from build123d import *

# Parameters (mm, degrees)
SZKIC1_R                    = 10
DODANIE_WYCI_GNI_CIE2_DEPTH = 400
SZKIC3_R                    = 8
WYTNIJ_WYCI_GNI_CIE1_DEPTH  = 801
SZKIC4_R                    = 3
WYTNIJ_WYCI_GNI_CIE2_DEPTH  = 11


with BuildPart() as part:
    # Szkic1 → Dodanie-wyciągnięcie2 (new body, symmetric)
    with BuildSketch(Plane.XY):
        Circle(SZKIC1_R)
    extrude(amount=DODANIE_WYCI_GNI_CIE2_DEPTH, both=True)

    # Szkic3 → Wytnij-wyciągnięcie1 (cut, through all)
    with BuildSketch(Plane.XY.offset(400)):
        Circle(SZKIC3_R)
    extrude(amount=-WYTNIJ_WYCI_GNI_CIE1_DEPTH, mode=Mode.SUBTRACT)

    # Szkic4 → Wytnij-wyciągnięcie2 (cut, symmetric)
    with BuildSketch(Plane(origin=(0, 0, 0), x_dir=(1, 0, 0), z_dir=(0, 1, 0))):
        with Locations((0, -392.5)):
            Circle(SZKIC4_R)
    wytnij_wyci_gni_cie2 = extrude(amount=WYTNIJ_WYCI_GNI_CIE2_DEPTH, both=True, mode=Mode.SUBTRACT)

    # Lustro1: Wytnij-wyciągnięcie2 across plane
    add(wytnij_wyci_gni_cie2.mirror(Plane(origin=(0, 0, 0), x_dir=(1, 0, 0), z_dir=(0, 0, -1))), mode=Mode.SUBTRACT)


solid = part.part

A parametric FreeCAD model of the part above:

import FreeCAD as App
import Part
import Sketcher
from FreeCAD import Vector

doc = App.newDocument("Part")
body = doc.addObject("PartDesign::Body", "Body")

# Sketch on XY plane
sketch1 = body.newObject("Sketcher::SketchObject", "Sketch")
sketch1.AttachmentSupport = (doc.getObject("XY_Plane"), [""])
sketch1.MapMode = "FlatFace"
sketch1.addGeometry(Part.Circle(Vector(0, 0, 0), Vector(0, 0, 1), 10), False)
sketch1.addConstraint([
    Sketcher.Constraint("Coincident", 0, 3, -1, 1),
    Sketcher.Constraint("Diameter", 0, 20.0),
])
pad1 = body.newObject("PartDesign::Pad", "Pad")
pad1.Profile = sketch1
pad1.Length = 800
pad1.Midplane = True

# Sketch on XY plane
sketch2 = body.newObject("Sketcher::SketchObject", "Sketch001")
sketch2.AttachmentSupport = (doc.getObject("XY_Plane"), [""])
sketch2.MapMode = "FlatFace"
sketch2.AttachmentOffset = App.Placement(Vector(0, 0, 400), App.Rotation())
sketch2.addGeometry(Part.Circle(Vector(0, 0, 0), Vector(0, 0, 1), 8), False)
sketch2.addConstraint([
    Sketcher.Constraint("Coincident", 0, 3, -1, 1),
    Sketcher.Constraint("Diameter", 0, 16.0),
])
pocket1 = body.newObject("PartDesign::Pocket", "Pocket")
pocket1.Profile = sketch2
pocket1.Type = "ThroughAll"

# Sketch on XZ plane
sketch3 = body.newObject("Sketcher::SketchObject", "Sketch002")
sketch3.AttachmentSupport = (doc.getObject("XZ_Plane"), [""])
sketch3.MapMode = "FlatFace"
sketch3.addGeometry(Part.Circle(Vector(0, 392.5, 0), Vector(0, 0, 1), 3), False)
sketch3.addConstraint([
    Sketcher.Constraint("PointOnObject", 0, 3, -2),
    Sketcher.Constraint("Diameter", 0, 6.0),
    Sketcher.Constraint("DistanceY", -1, 1, 0, 3, 392.5),
])
pocket2 = body.newObject("PartDesign::Pocket", "Pocket001")
pocket2.Profile = sketch3
pocket2.Length = 22
pocket2.Midplane = True
doc.recompute()

mirrored = body.newObject("PartDesign::Mirrored", "Mirrored")
mirrored.Originals = [pocket2]
mirrored.MirrorPlane = (doc.getObject("XY_Plane"), [""])
body.Tip = mirrored

doc.recompute()
